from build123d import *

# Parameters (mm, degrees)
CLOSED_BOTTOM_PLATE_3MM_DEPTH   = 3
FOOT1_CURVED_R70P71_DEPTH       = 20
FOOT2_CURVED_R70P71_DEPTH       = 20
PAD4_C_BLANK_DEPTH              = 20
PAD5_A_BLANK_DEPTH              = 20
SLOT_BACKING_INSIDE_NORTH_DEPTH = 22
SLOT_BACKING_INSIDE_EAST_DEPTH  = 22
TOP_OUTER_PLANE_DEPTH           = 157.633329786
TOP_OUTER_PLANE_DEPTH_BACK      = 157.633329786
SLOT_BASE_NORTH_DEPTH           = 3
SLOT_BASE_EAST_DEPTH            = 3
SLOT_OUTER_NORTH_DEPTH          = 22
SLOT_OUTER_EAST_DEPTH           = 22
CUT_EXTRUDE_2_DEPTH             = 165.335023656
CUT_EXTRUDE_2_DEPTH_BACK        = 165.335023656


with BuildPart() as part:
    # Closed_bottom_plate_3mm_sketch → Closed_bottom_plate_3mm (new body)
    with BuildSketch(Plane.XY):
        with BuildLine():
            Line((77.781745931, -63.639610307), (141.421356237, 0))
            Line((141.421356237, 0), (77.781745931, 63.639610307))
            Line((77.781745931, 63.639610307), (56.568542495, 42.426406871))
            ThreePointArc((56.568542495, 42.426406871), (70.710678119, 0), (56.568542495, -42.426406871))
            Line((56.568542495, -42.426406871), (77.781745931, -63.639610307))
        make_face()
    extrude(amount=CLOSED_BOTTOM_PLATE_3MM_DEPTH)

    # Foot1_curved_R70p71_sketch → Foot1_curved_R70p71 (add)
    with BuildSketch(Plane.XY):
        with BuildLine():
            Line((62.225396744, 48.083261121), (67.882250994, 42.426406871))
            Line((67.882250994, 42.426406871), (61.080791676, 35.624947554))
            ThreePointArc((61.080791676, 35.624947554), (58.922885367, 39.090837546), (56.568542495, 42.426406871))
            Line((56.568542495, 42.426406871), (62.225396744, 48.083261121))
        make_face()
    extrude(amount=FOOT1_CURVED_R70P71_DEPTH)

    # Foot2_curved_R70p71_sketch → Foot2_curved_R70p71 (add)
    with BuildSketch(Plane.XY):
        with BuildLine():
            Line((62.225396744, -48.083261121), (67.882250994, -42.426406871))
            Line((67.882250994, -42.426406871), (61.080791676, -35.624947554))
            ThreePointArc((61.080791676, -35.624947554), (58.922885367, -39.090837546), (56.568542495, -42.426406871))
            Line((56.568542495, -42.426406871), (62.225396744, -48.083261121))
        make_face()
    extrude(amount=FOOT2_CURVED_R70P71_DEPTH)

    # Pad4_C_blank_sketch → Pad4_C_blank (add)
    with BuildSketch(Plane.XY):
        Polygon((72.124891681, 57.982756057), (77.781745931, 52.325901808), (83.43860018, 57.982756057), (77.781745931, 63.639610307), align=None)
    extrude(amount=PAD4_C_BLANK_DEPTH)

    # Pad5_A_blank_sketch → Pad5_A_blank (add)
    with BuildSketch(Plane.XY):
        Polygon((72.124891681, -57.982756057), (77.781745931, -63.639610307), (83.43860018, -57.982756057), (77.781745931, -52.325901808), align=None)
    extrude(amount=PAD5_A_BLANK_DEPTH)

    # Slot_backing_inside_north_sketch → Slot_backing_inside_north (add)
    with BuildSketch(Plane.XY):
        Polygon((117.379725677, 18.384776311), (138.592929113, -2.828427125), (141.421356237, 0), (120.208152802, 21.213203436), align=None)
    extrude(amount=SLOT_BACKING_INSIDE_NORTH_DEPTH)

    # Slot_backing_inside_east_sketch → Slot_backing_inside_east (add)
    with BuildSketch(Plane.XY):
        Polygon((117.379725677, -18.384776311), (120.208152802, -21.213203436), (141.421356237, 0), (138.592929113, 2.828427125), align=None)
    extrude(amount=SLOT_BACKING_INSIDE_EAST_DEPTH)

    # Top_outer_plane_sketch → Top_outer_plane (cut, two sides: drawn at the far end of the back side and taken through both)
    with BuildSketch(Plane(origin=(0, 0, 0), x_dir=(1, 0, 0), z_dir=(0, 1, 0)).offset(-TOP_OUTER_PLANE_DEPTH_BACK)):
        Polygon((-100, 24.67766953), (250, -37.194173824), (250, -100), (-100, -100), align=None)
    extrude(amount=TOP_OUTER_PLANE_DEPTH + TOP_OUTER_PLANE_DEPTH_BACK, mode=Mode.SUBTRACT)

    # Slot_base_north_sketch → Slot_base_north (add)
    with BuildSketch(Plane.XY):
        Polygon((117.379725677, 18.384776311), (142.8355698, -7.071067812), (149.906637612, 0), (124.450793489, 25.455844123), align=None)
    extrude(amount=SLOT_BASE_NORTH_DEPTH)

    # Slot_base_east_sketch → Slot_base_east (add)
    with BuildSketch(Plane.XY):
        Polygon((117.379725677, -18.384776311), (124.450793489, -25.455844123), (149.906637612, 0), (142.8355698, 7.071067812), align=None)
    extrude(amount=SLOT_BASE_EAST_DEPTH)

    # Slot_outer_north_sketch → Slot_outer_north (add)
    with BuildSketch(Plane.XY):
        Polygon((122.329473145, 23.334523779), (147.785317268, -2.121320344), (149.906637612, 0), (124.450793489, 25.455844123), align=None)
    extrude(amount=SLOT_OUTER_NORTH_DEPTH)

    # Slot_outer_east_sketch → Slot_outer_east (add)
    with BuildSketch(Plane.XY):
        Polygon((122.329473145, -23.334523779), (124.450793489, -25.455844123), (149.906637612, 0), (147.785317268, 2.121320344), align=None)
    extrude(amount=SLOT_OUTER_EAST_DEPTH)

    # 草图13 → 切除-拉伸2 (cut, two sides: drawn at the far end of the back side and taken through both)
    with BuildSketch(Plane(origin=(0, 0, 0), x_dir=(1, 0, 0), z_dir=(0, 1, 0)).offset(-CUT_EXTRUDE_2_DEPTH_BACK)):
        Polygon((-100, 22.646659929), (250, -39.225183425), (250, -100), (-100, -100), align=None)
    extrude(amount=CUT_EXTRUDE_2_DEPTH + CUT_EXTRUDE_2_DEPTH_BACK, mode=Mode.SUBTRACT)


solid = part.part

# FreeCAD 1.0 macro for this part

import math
import FreeCAD as App
import Part
import Sketcher

V = App.Vector
Q = App.Units.Quantity

doc = App.newDocument("Part")
body = doc.addObject("PartDesign::Body", "Body")

sketch1 = doc.addObject("Sketcher::SketchObject", "Sketch")
body.addObject(sketch1)
sketch1.AttachmentSupport = (doc.XY_Plane, [""])
sketch1.MapMode = "FlatFace"
sketch1.addGeometry(Part.LineSegment(V(78, -64, 0), V(141, 0, 0)), False)
sketch1.addGeometry(Part.LineSegment(V(141, 0, 0), V(78, 64, 0)), False)
sketch1.addGeometry(Part.LineSegment(V(78, 64, 0), V(57, 42, 0)), False)
sketch1.addGeometry(Part.ArcOfCircle(Part.Circle(V(0, 0, 0), V(0, 0, 1), 71), math.radians(-37), math.radians(37)), False)
sketch1.addGeometry(Part.LineSegment(V(57, -42, 0), V(78, -64, 0)), False)
sketch1.addConstraint(Sketcher.Constraint("Coincident", 0, 2, 1, 1))
sketch1.addConstraint(Sketcher.Constraint("Coincident", 1, 2, 2, 1))
sketch1.addConstraint(Sketcher.Constraint("Coincident", 2, 2, 3, 2))
sketch1.addConstraint(Sketcher.Constraint("Coincident", 3, 1, 4, 1))
sketch1.addConstraint(Sketcher.Constraint("Coincident", 4, 2, 0, 1))
sketch1.addConstraint(Sketcher.Constraint("Coincident", 3, 3, -1, 1))
sketch1.addConstraint(Sketcher.Constraint("Symmetric", 1, 2, 4, 2, -1))
sketch1.addConstraint(Sketcher.Constraint("PointOnObject", 0, 2, -1))
sketch1.addConstraint(Sketcher.Constraint("Perpendicular", 0, 1))
sketch1.addConstraint(Sketcher.Constraint("Perpendicular", 1, 2))
sketch1.addConstraint(Sketcher.Constraint("Perpendicular", 2, 4))
sketch1.addConstraint(Sketcher.Constraint("Distance", 0, 90.0))
sketch1.addConstraint(Sketcher.Constraint("Distance", 2, 30.0))
sketch1.addConstraint(Sketcher.Constraint("Radius", 3, 70.710678))
pad1 = doc.addObject("PartDesign::Pad", "Pad")
body.addObject(pad1)
pad1.Profile = sketch1
pad1.Length = 3

sketch2 = doc.addObject("Sketcher::SketchObject", "Sketch001")
body.addObject(sketch2)
sketch2.AttachmentSupport = (doc.XY_Plane, [""])
sketch2.MapMode = "FlatFace"
sketch2.addGeometry(Part.LineSegment(V(68, 42, 0), V(62, 48, 0)), False)
sketch2.addGeometry(Part.LineSegment(V(62, 48, 0), V(57, 42, 0)), False)
sketch2.addGeometry(Part.ArcOfCircle(Part.Circle(V(0, 0, 0), V(0, 0, 1), 71), math.radians(30.25), math.radians(36.87)), False)
sketch2.addGeometry(Part.LineSegment(V(61, 36, 0), V(68, 42, 0)), False)
sketch2.addConstraint(Sketcher.Constraint("Coincident", 0, 2, 1, 1))
sketch2.addConstraint(Sketcher.Constraint("Coincident", 1, 2, 2, 2))
sketch2.addConstraint(Sketcher.Constraint("Coincident", 2, 1, 3, 1))
sketch2.addConstraint(Sketcher.Constraint("Coincident", 3, 2, 0, 1))
sketch2.addConstraint(Sketcher.Constraint("Coincident", 2, 3, -1, 1))
sketch2.addConstraint(Sketcher.Constraint("Perpendicular", 0, 1))
sketch2.addConstraint(Sketcher.Constraint("Parallel", 1, 3))
sketch2.addConstraint(Sketcher.Constraint("Horizontal", 1, 2, 3, 2))
sketch2.addConstraint(Sketcher.Constraint("Equal", 0, 1))
sketch2.addConstraint(Sketcher.Constraint("Distance", 0, 8.0))
sketch2.addConstraint(Sketcher.Constraint("Radius", 2, 70.710678))
sketch2.addConstraint(Sketcher.Constraint("DistanceY", -1, 1, 0, 2, 48.083261))
pad2 = doc.addObject("PartDesign::Pad", "Pad001")
body.addObject(pad2)
pad2.Profile = sketch2
pad2.Length = 20

sketch3 = doc.addObject("Sketcher::SketchObject", "Sketch002")
body.addObject(sketch3)
sketch3.AttachmentSupport = (doc.XY_Plane, [""])
sketch3.MapMode = "FlatFace"
sketch3.addGeometry(Part.LineSegment(V(62, -48, 0), V(68, -42, 0)), False)
sketch3.addGeometry(Part.LineSegment(V(68, -42, 0), V(61, -36, 0)), False)
sketch3.addGeometry(Part.ArcOfCircle(Part.Circle(V(0, 0, 0), V(0, 0, 1), 71), math.radians(-36.87), math.radians(-30.25)), False)
sketch3.addGeometry(Part.LineSegment(V(57, -42, 0), V(62, -48, 0)), False)
sketch3.addConstraint(Sketcher.Constraint("Coincident", 0, 2, 1, 1))
sketch3.addConstraint(Sketcher.Constraint("Coincident", 1, 2, 2, 2))
sketch3.addConstraint(Sketcher.Constraint("Coincident", 2, 1, 3, 1))
sketch3.addConstraint(Sketcher.Constraint("Coincident", 3, 2, 0, 1))
sketch3.addConstraint(Sketcher.Constraint("Coincident", 2, 3, -1, 1))
sketch3.addConstraint(Sketcher.Constraint("Perpendicular", 0, 1))
sketch3.addConstraint(Sketcher.Constraint("Parallel", 1, 3))
sketch3.addConstraint(Sketcher.Constraint("Horizontal", 0, 2, 2, 1))
sketch3.addConstraint(Sketcher.Constraint("Equal", 0, 3))
sketch3.addConstraint(Sketcher.Constraint("Distance", 0, 8.0))
sketch3.addConstraint(Sketcher.Constraint("Radius", 2, 70.710678))
sketch3.addConstraint(Sketcher.Constraint("DistanceX", -1, 1, 0, 2, 67.882251))
pad3 = doc.addObject("PartDesign::Pad", "Pad002")
body.addObject(pad3)
pad3.Profile = sketch3
pad3.Length = 20

sketch4 = doc.addObject("Sketcher::SketchObject", "Sketch003")
body.addObject(sketch4)
sketch4.AttachmentSupport = (doc.XY_Plane, [""])
sketch4.MapMode = "FlatFace"
sketch4.addGeometry(Part.LineSegment(V(72, 58, 0), V(78, 52, 0)), False)
sketch4.addGeometry(Part.LineSegment(V(78, 52, 0), V(83, 58, 0)), False)
sketch4.addGeometry(Part.LineSegment(V(83, 58, 0), V(78, 64, 0)), False)
sketch4.addGeometry(Part.LineSegment(V(78, 64, 0), V(72, 58, 0)), False)
sketch4.addConstraint(Sketcher.Constraint("Coincident", 0, 2, 1, 1))
sketch4.addConstraint(Sketcher.Constraint("Coincident", 1, 2, 2, 1))
sketch4.addConstraint(Sketcher.Constraint("Coincident", 2, 2, 3, 1))
sketch4.addConstraint(Sketcher.Constraint("Coincident", 3, 2, 0, 1))
sketch4.addConstraint(Sketcher.Constraint("Perpendicular", 0, 1))
sketch4.addConstraint(Sketcher.Constraint("Perpendicular", 1, 2))
sketch4.addConstraint(Sketcher.Constraint("Perpendicular", 2, 3))
sketch4.addConstraint(Sketcher.Constraint("Horizontal", 1, 2, 3, 2))
sketch4.addConstraint(Sketcher.Constraint("Vertical", 0, 2, 2, 2))
sketch4.addConstraint(Sketcher.Constraint("Distance", 0, 8.0))
sketch4.addConstraint(Sketcher.Constraint("DistanceY", -1, 1, 0, 2, 52.325902))
sketch4.addConstraint(Sketcher.Constraint("DistanceX", -1, 1, 1, 2, 83.4386))
pad4 = doc.addObject("PartDesign::Pad", "Pad003")
body.addObject(pad4)
pad4.Profile = sketch4
pad4.Length = 20

sketch5 = doc.addObject("Sketcher::SketchObject", "Sketch004")
body.addObject(sketch5)
sketch5.AttachmentSupport = (doc.XY_Plane, [""])
sketch5.MapMode = "FlatFace"
sketch5.addGeometry(Part.LineSegment(V(72, -58, 0), V(78, -64, 0)), False)
sketch5.addGeometry(Part.LineSegment(V(78, -64, 0), V(83, -58, 0)), False)
sketch5.addGeometry(Part.LineSegment(V(83, -58, 0), V(78, -52, 0)), False)
sketch5.addGeometry(Part.LineSegment(V(78, -52, 0), V(72, -58, 0)), False)
sketch5.addConstraint(Sketcher.Constraint("Coincident", 0, 2, 1, 1))
sketch5.addConstraint(Sketcher.Constraint("Coincident", 1, 2, 2, 1))
sketch5.addConstraint(Sketcher.Constraint("Coincident", 2, 2, 3, 1))
sketch5.addConstraint(Sketcher.Constraint("Coincident", 3, 2, 0, 1))
sketch5.addConstraint(Sketcher.Constraint("Perpendicular", 0, 1))
sketch5.addConstraint(Sketcher.Constraint("Perpendicular", 1, 2))
sketch5.addConstraint(Sketcher.Constraint("Perpendicular", 2, 3))
sketch5.addConstraint(Sketcher.Constraint("Horizontal", 1, 2, 3, 2))
sketch5.addConstraint(Sketcher.Constraint("Vertical", 0, 2, 2, 2))
sketch5.addConstraint(Sketcher.Constraint("Distance", 0, 8.0))
sketch5.addConstraint(Sketcher.Constraint("DistanceX", -1, 1, 1, 2, 83.4386))
sketch5.addConstraint(Sketcher.Constraint("DistanceY", 2, 2, -1, 1, 52.325902))
pad5 = doc.addObject("PartDesign::Pad", "Pad004")
body.addObject(pad5)
pad5.Profile = sketch5
pad5.Length = 20

sketch6 = doc.addObject("Sketcher::SketchObject", "Sketch005")
body.addObject(sketch6)
sketch6.AttachmentSupport = (doc.XY_Plane, [""])
sketch6.MapMode = "FlatFace"
sketch6.addGeometry(Part.LineSegment(V(117.4, 18.4, 0), V(138.6, -2.8, 0)), False)
sketch6.addGeometry(Part.LineSegment(V(138.6, -2.8, 0), V(141.4, 0, 0)), False)
sketch6.addGeometry(Part.LineSegment(V(141.4, 0, 0), V(120.2, 21.2, 0)), False)
sketch6.addGeometry(Part.LineSegment(V(120.2, 21.2, 0), V(117.4, 18.4, 0)), False)
sketch6.addConstraint(Sketcher.Constraint("Coincident", 0, 2, 1, 1))
sketch6.addConstraint(Sketcher.Constraint("Coincident", 1, 2, 2, 1))
sketch6.addConstraint(Sketcher.Constraint("Coincident", 2, 2, 3, 1))
sketch6.addConstraint(Sketcher.Constraint("Coincident", 3, 2, 0, 1))
sketch6.addConstraint(Sketcher.Constraint("PointOnObject", 1, 2, -1))
sketch6.addConstraint(Sketcher.Constraint("Perpendicular", 0, 1))
sketch6.addConstraint(Sketcher.Constraint("Perpendicular", 1, 2))
sketch6.addConstraint(Sketcher.Constraint("Perpendicular", 2, 3))
sketch6.addConstraint(Sketcher.Constraint("Angle", 0, Q("-45 deg")))
sketch6.addConstraint(Sketcher.Constraint("Distance", 0, 30.0))
sketch6.addConstraint(Sketcher.Constraint("Distance", 1, 4.0))
sketch6.addConstraint(Sketcher.Constraint("DistanceX", -1, 1, 0, 2, 138.592929))
pad6 = doc.addObject("PartDesign::Pad", "Pad005")
body.addObject(pad6)
pad6.Profile = sketch6
pad6.Length = 22

sketch7 = doc.addObject("Sketcher::SketchObject", "Sketch006")
body.addObject(sketch7)
sketch7.AttachmentSupport = (doc.XY_Plane, [""])
sketch7.MapMode = "FlatFace"
sketch7.addGeometry(Part.LineSegment(V(117.4, -18.4, 0), V(120.2, -21.2, 0)), False)
sketch7.addGeometry(Part.LineSegment(V(120.2, -21.2, 0), V(141.4, 0, 0)), False)
sketch7.addGeometry(Part.LineSegment(V(141.4, 0, 0), V(138.6, 2.8, 0)), False)
sketch7.addGeometry(Part.LineSegment(V(138.6, 2.8, 0), V(117.4, -18.4, 0)), False)
sketch7.addConstraint(Sketcher.Constraint("Coincident", 0, 2, 1, 1))
sketch7.addConstraint(Sketcher.Constraint("Coincident", 1, 2, 2, 1))
sketch7.addConstraint(Sketcher.Constraint("Coincident", 2, 2, 3, 1))
sketch7.addConstraint(Sketcher.Constraint("Coincident", 3, 2, 0, 1))
sketch7.addConstraint(Sketcher.Constraint("PointOnObject", 1, 2, -1))
sketch7.addConstraint(Sketcher.Constraint("Perpendicular", 0, 1))
sketch7.addConstraint(Sketcher.Constraint("Perpendicular", 1, 2))
sketch7.addConstraint(Sketcher.Constraint("Perpendicular", 2, 3))
sketch7.addConstraint(Sketcher.Constraint("Angle", 0, Q("-45 deg")))
sketch7.addConstraint(Sketcher.Constraint("Distance", 0, 4.0))
sketch7.addConstraint(Sketcher.Constraint("Distance", 1, 30.0))
sketch7.addConstraint(Sketcher.Constraint("DistanceX", -1, 1, 2, 2, 138.592929))
pad7 = doc.addObject("PartDesign::Pad", "Pad006")
body.addObject(pad7)
pad7.Profile = sketch7
pad7.Length = 22

sketch8 = doc.addObject("Sketcher::SketchObject", "Sketch007")
body.addObject(sketch8)
sketch8.AttachmentSupport = (doc.XZ_Plane, [""])
sketch8.MapMode = "FlatFace"
sketch8.addGeometry(Part.LineSegment(V(250, 37, 0), V(-100, -25, 0)), False)
sketch8.addGeometry(Part.LineSegment(V(-100, -25, 0), V(-100, 100, 0)), False)
sketch8.addGeometry(Part.LineSegment(V(-100, 100, 0), V(250, 100, 0)), False)
sketch8.addGeometry(Part.LineSegment(V(250, 100, 0), V(250, 37, 0)), False)
sketch8.addConstraint(Sketcher.Constraint("Coincident", 0, 2, 1, 1))
sketch8.addConstraint(Sketcher.Constraint("Coincident", 1, 2, 2, 1))
sketch8.addConstraint(Sketcher.Constraint("Coincident", 2, 2, 3, 1))
sketch8.addConstraint(Sketcher.Constraint("Coincident", 3, 2, 0, 1))
sketch8.addConstraint(Sketcher.Constraint("Vertical", 1))
sketch8.addConstraint(Sketcher.Constraint("Horizontal", 2))
sketch8.addConstraint(Sketcher.Constraint("Vertical", 3))
sketch8.addConstraint(Sketcher.Constraint("DistanceX", 2, 1, 2, 2, 350.0))
sketch8.addConstraint(Sketcher.Constraint("DistanceX", 0, 2, -1, 1, 100.0))
sketch8.addConstraint(Sketcher.Constraint("DistanceY", -1, 1, 1, 2, 100.0))
sketch8.addConstraint(Sketcher.Constraint("DistanceY", 1, 1, 1, 2, 124.67767))
sketch8.addConstraint(Sketcher.Constraint("Distance", 0, 355.42668))
pocket1 = doc.addObject("PartDesign::Pocket", "Pocket")
body.addObject(pocket1)
pocket1.Profile = sketch8
pocket1.Type = "ThroughAll"
pocket1.Midplane = True

sketch9 = doc.addObject("Sketcher::SketchObject", "Sketch008")
body.addObject(sketch9)
sketch9.AttachmentSupport = (doc.XY_Plane, [""])
sketch9.MapMode = "FlatFace"
sketch9.addGeometry(Part.LineSegment(V(117, 18, 0), V(143, -7, 0)), False)
sketch9.addGeometry(Part.LineSegment(V(143, -7, 0), V(150, 0, 0)), False)
sketch9.addGeometry(Part.LineSegment(V(150, 0, 0), V(124, 25, 0)), False)
sketch9.addGeometry(Part.LineSegment(V(124, 25, 0), V(117, 18, 0)), False)
sketch9.addConstraint(Sketcher.Constraint("Coincident", 0, 2, 1, 1))
sketch9.addConstraint(Sketcher.Constraint("Coincident", 1, 2, 2, 1))
sketch9.addConstraint(Sketcher.Constraint("Coincident", 2, 2, 3, 1))
sketch9.addConstraint(Sketcher.Constraint("Coincident", 3, 2, 0, 1))
sketch9.addConstraint(Sketcher.Constraint("PointOnObject", 1, 2, -1))
sketch9.addConstraint(Sketcher.Constraint("Perpendicular", 0, 1))
sketch9.addConstraint(Sketcher.Constraint("Perpendicular", 1, 2))
sketch9.addConstraint(Sketcher.Constraint("Perpendicular", 2, 3))
sketch9.addConstraint(Sketcher.Constraint("Angle", 0, Q("-45 deg")))
sketch9.addConstraint(Sketcher.Constraint("Distance", 0, 36.0))
sketch9.addConstraint(Sketcher.Constraint("Distance", 1, 10.0))
sketch9.addConstraint(Sketcher.Constraint("DistanceX", -1, 1, 0, 2, 142.83557))
pad8 = doc.addObject("PartDesign::Pad", "Pad007")
body.addObject(pad8)
pad8.Profile = sketch9
pad8.Length = 3

sketch10 = doc.addObject("Sketcher::SketchObject", "Sketch009")
body.addObject(sketch10)
sketch10.AttachmentSupport = (doc.XY_Plane, [""])
sketch10.MapMode = "FlatFace"
sketch10.addGeometry(Part.LineSegment(V(117, -18, 0), V(124, -25, 0)), False)
sketch10.addGeometry(Part.LineSegment(V(124, -25, 0), V(150, 0, 0)), False)
sketch10.addGeometry(Part.LineSegment(V(150, 0, 0), V(143, 7, 0)), False)
sketch10.addGeometry(Part.LineSegment(V(143, 7, 0), V(117, -18, 0)), False)
sketch10.addConstraint(Sketcher.Constraint("Coincident", 0, 2, 1, 1))
sketch10.addConstraint(Sketcher.Constraint("Coincident", 1, 2, 2, 1))
sketch10.addConstraint(Sketcher.Constraint("Coincident", 2, 2, 3, 1))
sketch10.addConstraint(Sketcher.Constraint("Coincident", 3, 2, 0, 1))
sketch10.addConstraint(Sketcher.Constraint("PointOnObject", 1, 2, -1))
sketch10.addConstraint(Sketcher.Constraint("Perpendicular", 0, 1))
sketch10.addConstraint(Sketcher.Constraint("Perpendicular", 1, 2))
sketch10.addConstraint(Sketcher.Constraint("Perpendicular", 2, 3))
sketch10.addConstraint(Sketcher.Constraint("Angle", 0, Q("-45 deg")))
sketch10.addConstraint(Sketcher.Constraint("Distance", 0, 10.0))
sketch10.addConstraint(Sketcher.Constraint("Distance", 1, 36.0))
sketch10.addConstraint(Sketcher.Constraint("DistanceX", -1, 1, 2, 2, 142.83557))
pad9 = doc.addObject("PartDesign::Pad", "Pad008")
body.addObject(pad9)
pad9.Profile = sketch10
pad9.Length = 3

sketch11 = doc.addObject("Sketcher::SketchObject", "Sketch010")
body.addObject(sketch11)
sketch11.AttachmentSupport = (doc.XY_Plane, [""])
sketch11.MapMode = "FlatFace"
sketch11.addGeometry(Part.LineSegment(V(122.3, 23.3, 0), V(147.8, -2.1, 0)), False)
sketch11.addGeometry(Part.LineSegment(V(147.8, -2.1, 0), V(149.9, 0, 0)), False)
sketch11.addGeometry(Part.LineSegment(V(149.9, 0, 0), V(124.5, 25.5, 0)), False)
sketch11.addGeometry(Part.LineSegment(V(124.5, 25.5, 0), V(122.3, 23.3, 0)), False)
sketch11.addConstraint(Sketcher.Constraint("Coincident", 0, 2, 1, 1))
sketch11.addConstraint(Sketcher.Constraint("Coincident", 1, 2, 2, 1))
sketch11.addConstraint(Sketcher.Constraint("Coincident", 2, 2, 3, 1))
sketch11.addConstraint(Sketcher.Constraint("Coincident", 3, 2, 0, 1))
sketch11.addConstraint(Sketcher.Constraint("PointOnObject", 1, 2, -1))
sketch11.addConstraint(Sketcher.Constraint("Perpendicular", 0, 1))
sketch11.addConstraint(Sketcher.Constraint("Perpendicular", 1, 2))
sketch11.addConstraint(Sketcher.Constraint("Perpendicular", 2, 3))
sketch11.addConstraint(Sketcher.Constraint("Angle", 0, Q("-45 deg")))
sketch11.addConstraint(Sketcher.Constraint("Distance", 0, 36.0))
sketch11.addConstraint(Sketcher.Constraint("Distance", 1, 3.0))
sketch11.addConstraint(Sketcher.Constraint("DistanceX", -1, 1, 0, 2, 147.785317))
pad10 = doc.addObject("PartDesign::Pad", "Pad009")
body.addObject(pad10)
pad10.Profile = sketch11
pad10.Length = 22

sketch12 = doc.addObject("Sketcher::SketchObject", "Sketch011")
body.addObject(sketch12)
sketch12.AttachmentSupport = (doc.XY_Plane, [""])
sketch12.MapMode = "FlatFace"
sketch12.addGeometry(Part.LineSegment(V(122.3, -23.3, 0), V(124.5, -25.5, 0)), False)
sketch12.addGeometry(Part.LineSegment(V(124.5, -25.5, 0), V(149.9, 0, 0)), False)
sketch12.addGeometry(Part.LineSegment(V(149.9, 0, 0), V(147.8, 2.1, 0)), False)
sketch12.addGeometry(Part.LineSegment(V(147.8, 2.1, 0), V(122.3, -23.3, 0)), False)
sketch12.addConstraint(Sketcher.Constraint("Coincident", 0, 2, 1, 1))
sketch12.addConstraint(Sketcher.Constraint("Coincident", 1, 2, 2, 1))
sketch12.addConstraint(Sketcher.Constraint("Coincident", 2, 2, 3, 1))
sketch12.addConstraint(Sketcher.Constraint("Coincident", 3, 2, 0, 1))
sketch12.addConstraint(Sketcher.Constraint("PointOnObject", 1, 2, -1))
sketch12.addConstraint(Sketcher.Constraint("Perpendicular", 0, 1))
sketch12.addConstraint(Sketcher.Constraint("Perpendicular", 1, 2))
sketch12.addConstraint(Sketcher.Constraint("Perpendicular", 2, 3))
sketch12.addConstraint(Sketcher.Constraint("Angle", 0, Q("-45 deg")))
sketch12.addConstraint(Sketcher.Constraint("Distance", 0, 3.0))
sketch12.addConstraint(Sketcher.Constraint("Distance", 1, 36.0))
sketch12.addConstraint(Sketcher.Constraint("DistanceX", -1, 1, 0, 2, 124.450793))
pad11 = doc.addObject("PartDesign::Pad", "Pad010")
body.addObject(pad11)
pad11.Profile = sketch12
pad11.Length = 22

sketch13 = doc.addObject("Sketcher::SketchObject", "Sketch012")
body.addObject(sketch13)
sketch13.AttachmentSupport = (doc.XZ_Plane, [""])
sketch13.MapMode = "FlatFace"
sketch13.addGeometry(Part.LineSegment(V(250, 39, 0), V(-100, -23, 0)), False)
sketch13.addGeometry(Part.LineSegment(V(-100, -23, 0), V(-100, 100, 0)), False)
sketch13.addGeometry(Part.LineSegment(V(-100, 100, 0), V(250, 100, 0)), False)
sketch13.addGeometry(Part.LineSegment(V(250, 100, 0), V(250, 39, 0)), False)
sketch13.addConstraint(Sketcher.Constraint("Coincident", 0, 2, 1, 1))
sketch13.addConstraint(Sketcher.Constraint("Coincident", 1, 2, 2, 1))
sketch13.addConstraint(Sketcher.Constraint("Coincident", 2, 2, 3, 1))
sketch13.addConstraint(Sketcher.Constraint("Coincident", 3, 2, 0, 1))
sketch13.addConstraint(Sketcher.Constraint("Vertical", 1))
sketch13.addConstraint(Sketcher.Constraint("Horizontal", 2))
sketch13.addConstraint(Sketcher.Constraint("Vertical", 3))
sketch13.addConstraint(Sketcher.Constraint("DistanceX", 2, 1, 2, 2, 350.0))
sketch13.addConstraint(Sketcher.Constraint("DistanceX", 0, 2, -1, 1, 100.0))
sketch13.addConstraint(Sketcher.Constraint("DistanceY", -1, 1, 1, 2, 100.0))
sketch13.addConstraint(Sketcher.Constraint("DistanceY", 1, 1, 1, 2, 122.64666))
sketch13.addConstraint(Sketcher.Constraint("Distance", 0, 355.42668))
pocket2 = doc.addObject("PartDesign::Pocket", "Pocket001")
body.addObject(pocket2)
pocket2.Profile = sketch13
pocket2.Type = "ThroughAll"
pocket2.Midplane = True

doc.recompute()
